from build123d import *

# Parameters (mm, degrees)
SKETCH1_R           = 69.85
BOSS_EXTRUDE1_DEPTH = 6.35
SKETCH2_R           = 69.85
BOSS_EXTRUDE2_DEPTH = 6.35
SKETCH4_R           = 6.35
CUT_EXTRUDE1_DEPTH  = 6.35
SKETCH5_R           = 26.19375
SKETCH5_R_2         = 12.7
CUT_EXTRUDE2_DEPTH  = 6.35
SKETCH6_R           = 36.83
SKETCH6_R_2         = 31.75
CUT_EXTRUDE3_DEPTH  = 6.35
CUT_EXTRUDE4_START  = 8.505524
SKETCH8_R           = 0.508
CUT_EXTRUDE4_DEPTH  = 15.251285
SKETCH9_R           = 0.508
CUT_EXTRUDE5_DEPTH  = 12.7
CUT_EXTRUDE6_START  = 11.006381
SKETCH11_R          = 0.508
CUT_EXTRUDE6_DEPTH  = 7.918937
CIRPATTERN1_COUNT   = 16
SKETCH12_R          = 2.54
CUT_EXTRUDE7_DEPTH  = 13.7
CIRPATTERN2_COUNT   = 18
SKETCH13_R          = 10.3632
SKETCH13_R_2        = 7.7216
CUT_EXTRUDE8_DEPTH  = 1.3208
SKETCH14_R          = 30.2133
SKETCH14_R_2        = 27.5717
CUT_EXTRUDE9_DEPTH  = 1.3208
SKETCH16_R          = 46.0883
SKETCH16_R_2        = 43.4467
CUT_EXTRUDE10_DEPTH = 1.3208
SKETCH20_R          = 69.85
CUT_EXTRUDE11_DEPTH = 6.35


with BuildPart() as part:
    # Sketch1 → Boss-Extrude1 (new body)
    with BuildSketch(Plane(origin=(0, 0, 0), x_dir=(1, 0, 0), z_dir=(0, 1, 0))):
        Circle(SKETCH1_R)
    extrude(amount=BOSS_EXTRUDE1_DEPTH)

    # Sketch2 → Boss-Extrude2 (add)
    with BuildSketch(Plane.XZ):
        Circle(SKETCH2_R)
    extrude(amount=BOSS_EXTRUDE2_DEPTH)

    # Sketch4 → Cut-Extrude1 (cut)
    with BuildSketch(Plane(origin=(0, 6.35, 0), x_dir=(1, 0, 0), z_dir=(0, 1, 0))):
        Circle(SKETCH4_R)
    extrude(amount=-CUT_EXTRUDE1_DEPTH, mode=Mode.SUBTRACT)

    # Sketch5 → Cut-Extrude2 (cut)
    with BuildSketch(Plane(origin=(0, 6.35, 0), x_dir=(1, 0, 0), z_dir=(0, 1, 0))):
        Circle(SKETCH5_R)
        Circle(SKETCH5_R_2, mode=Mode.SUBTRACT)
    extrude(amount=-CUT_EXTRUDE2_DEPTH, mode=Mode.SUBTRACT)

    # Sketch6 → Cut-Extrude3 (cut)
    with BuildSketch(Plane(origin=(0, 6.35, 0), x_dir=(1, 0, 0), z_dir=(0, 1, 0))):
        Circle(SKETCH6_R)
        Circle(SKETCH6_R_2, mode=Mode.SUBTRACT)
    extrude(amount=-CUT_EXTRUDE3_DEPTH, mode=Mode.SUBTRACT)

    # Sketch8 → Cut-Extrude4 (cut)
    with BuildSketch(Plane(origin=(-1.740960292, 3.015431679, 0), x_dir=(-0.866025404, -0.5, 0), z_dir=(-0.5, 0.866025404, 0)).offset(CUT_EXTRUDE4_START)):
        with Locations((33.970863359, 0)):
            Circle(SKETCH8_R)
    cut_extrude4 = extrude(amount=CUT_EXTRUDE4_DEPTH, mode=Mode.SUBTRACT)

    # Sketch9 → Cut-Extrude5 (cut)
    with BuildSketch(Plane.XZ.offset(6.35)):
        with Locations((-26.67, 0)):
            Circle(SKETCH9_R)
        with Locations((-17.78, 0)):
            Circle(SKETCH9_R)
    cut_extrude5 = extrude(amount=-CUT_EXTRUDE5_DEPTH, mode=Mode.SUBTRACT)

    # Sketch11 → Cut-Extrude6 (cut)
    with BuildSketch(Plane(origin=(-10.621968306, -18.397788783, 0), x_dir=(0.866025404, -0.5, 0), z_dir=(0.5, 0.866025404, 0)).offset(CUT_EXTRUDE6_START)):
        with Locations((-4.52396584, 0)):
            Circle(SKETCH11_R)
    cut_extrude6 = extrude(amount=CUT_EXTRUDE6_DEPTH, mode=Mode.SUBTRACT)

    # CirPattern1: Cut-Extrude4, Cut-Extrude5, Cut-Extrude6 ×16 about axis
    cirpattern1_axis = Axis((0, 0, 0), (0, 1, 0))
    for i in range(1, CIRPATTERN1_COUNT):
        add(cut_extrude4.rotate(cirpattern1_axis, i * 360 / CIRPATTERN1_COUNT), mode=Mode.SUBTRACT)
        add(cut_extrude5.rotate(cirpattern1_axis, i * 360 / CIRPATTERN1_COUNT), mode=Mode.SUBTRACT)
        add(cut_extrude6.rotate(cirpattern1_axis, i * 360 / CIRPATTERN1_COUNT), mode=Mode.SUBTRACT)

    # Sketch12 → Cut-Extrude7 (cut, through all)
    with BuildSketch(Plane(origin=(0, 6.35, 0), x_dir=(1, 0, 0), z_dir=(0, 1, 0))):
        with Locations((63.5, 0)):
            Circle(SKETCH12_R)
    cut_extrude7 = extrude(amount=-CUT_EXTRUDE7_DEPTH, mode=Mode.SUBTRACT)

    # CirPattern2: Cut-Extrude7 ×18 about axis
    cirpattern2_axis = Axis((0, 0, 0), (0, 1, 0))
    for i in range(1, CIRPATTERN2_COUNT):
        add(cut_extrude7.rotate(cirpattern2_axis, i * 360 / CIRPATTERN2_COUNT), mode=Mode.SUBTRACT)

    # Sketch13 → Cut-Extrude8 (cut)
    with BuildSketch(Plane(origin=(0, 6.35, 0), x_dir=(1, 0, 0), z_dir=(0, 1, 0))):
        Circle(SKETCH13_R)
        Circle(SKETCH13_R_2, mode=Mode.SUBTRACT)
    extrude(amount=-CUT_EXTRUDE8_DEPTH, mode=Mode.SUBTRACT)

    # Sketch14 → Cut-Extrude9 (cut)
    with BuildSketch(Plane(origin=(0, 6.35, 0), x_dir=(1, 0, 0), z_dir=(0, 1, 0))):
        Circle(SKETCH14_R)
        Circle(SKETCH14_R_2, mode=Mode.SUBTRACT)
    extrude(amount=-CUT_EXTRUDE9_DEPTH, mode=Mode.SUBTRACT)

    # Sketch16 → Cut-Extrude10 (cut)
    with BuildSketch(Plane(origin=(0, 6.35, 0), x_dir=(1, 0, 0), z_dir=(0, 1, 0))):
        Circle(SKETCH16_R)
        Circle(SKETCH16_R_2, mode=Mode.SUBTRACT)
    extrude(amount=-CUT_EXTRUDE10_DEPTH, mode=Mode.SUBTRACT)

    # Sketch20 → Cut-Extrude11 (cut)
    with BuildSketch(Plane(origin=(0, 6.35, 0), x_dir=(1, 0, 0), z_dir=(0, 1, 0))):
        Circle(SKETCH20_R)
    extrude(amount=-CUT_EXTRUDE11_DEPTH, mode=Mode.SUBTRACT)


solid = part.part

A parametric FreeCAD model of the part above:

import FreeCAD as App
import Part
import Sketcher
Q = App.Units.Quantity

doc = App.newDocument("Part")
params = doc.addObject("Spreadsheet::Sheet", "Params")
for row, (alias, value) in enumerate([
    ("sketch1_diameter", "5.5 in"),
    ("pad1_length", "0.25 in"),
    ("sketch2_diameter", "5.5 in"),
    ("pad2_length", "0.25 in"),
    ("sketch3_diameter", "0.5 in"),
    ("pocket1_length", "0.25 in"),
    ("sketch4_diameter", "1 in"),
    ("sketch4_diameter2", "2.0625 in"),
    ("pocket2_length", "0.25 in"),
    ("sketch5_diameter", "2.9 in"),
    ("sketch5_diameter2", "2.5 in"),
    ("pocket3_length", "0.25 in"),
    ("sketch6_diameter", "0.04 in"),
    ("pocket4_length", "15.251285 mm"),
    ("sketch7_diameter", "0.04 in"),
    ("pocket5_length", "0.5 in"),
    ("sketch8_diameter", "0.04 in"),
    ("pocket6_length", "7.918937 mm"),
    ("sketch9_diameter", "0.2 in"),
    ("sketch10_diameter", "0.816 in"),
    ("sketch10_diameter2", "0.608 in"),
    ("pocket8_length", "0.052 in"),
    ("sketch11_diameter", "2.379 in"),
    ("sketch11_diameter2", "2.171 in"),
    ("pocket9_length", "0.052 in"),
    ("sketch12_diameter", "3.629 in"),
    ("sketch12_diameter2", "3.421 in"),
    ("pocket10_length", "0.052 in"),
    ("sketch13_diameter", "5.5 in"),
    ("pocket11_length", "0.25 in"),
], start=1):
    params.set(f"A{row}", alias)
    params.set(f"B{row}", "=" + value)
    params.setAlias(f"B{row}", alias)

body = doc.addObject("PartDesign::Body", "Body")

sketch1 = body.newObject("Sketcher::SketchObject", "Sketch")
sketch1.AttachmentSupport = (doc.getObject("XZ_Plane"), [""])
sketch1.MapMode = "FlatFace"
sketch1.addGeometry(Part.Circle(App.Vector(0, 0, 0), App.Vector(0, 0, 1), 70), False)
sketch1.addConstraint([
    Sketcher.Constraint("Coincident", 0, 3, -1, 1),
    Sketcher.Constraint("Diameter", 0, Q("5.5 in")),
])
sketch1.setExpression("Constraints[1]", "Params.sketch1_diameter")
pad1 = body.newObject("PartDesign::Pad", "Pad")
pad1.Profile = sketch1
pad1.setExpression("Length", "Params.pad1_length")
pad1.Reversed = True

sketch2 = body.newObject("Sketcher::SketchObject", "Sketch001")
sketch2.AttachmentSupport = (doc.getObject("XZ_Plane"), [""])
sketch2.MapMode = "FlatFace"
sketch2.addGeometry(Part.Circle(App.Vector(0, 0, 0), App.Vector(0, 0, 1), 70), False)
sketch2.addConstraint([
    Sketcher.Constraint("Coincident", 0, 3, -1, 1),
    Sketcher.Constraint("Diameter", 0, Q("5.5 in")),
])
sketch2.setExpression("Constraints[1]", "Params.sketch2_diameter")
pad2 = body.newObject("PartDesign::Pad", "Pad001")
pad2.Profile = sketch2
pad2.setExpression("Length", "Params.pad2_length")

sketch3 = body.newObject("Sketcher::SketchObject", "Sketch002")
sketch3.AttachmentSupport = (doc.getObject("XZ_Plane"), [""])
sketch3.MapMode = "FlatFace"
sketch3.AttachmentOffset = App.Placement(App.Vector(0, 0, -0.25 * 25.4), App.Rotation())
sketch3.addGeometry(Part.Circle(App.Vector(0, 0, 0), App.Vector(0, 0, 1), 6), False)
sketch3.addConstraint([
    Sketcher.Constraint("Coincident", 0, 3, -1, 1),
    Sketcher.Constraint("Diameter", 0, Q("0.5 in")),
])
sketch3.setExpression("Constraints[1]", "Params.sketch3_diameter")
pocket1 = body.newObject("PartDesign::Pocket", "Pocket")
pocket1.Profile = sketch3
pocket1.setExpression("Length", "Params.pocket1_length")
pocket1.Reversed = True

sketch4 = body.newObject("Sketcher::SketchObject", "Sketch003")
sketch4.AttachmentSupport = (doc.getObject("XZ_Plane"), [""])
sketch4.MapMode = "FlatFace"
sketch4.AttachmentOffset = App.Placement(App.Vector(0, 0, -0.25 * 25.4), App.Rotation())
sketch4.addGeometry([
    Part.Circle(App.Vector(0, 0, 0), App.Vector(0, 0, 1), 26),
    Part.Circle(App.Vector(0, 0, 0), App.Vector(0, 0, 1), 13),
], False)
sketch4.addConstraint([
    Sketcher.Constraint("Coincident", 0, 3, -1, 1),
    Sketcher.Constraint("Coincident", 1, 3, -1, 1),
    Sketcher.Constraint("Diameter", 1, Q("1 in")),
    Sketcher.Constraint("Diameter", 0, Q("2.0625 in")),
])
sketch4.setExpression("Constraints[2]", "Params.sketch4_diameter")
sketch4.setExpression("Constraints[3]", "Params.sketch4_diameter2")
pocket2 = body.newObject("PartDesign::Pocket", "Pocket001")
pocket2.Profile = sketch4
pocket2.setExpression("Length", "Params.pocket2_length")
pocket2.Reversed = True

sketch5 = body.newObject("Sketcher::SketchObject", "Sketch004")
sketch5.AttachmentSupport = (doc.getObject("XZ_Plane"), [""])
sketch5.MapMode = "FlatFace"
sketch5.AttachmentOffset = App.Placement(App.Vector(0, 0, -0.25 * 25.4), App.Rotation())
sketch5.addGeometry([
    Part.Circle(App.Vector(0, 0, 0), App.Vector(0, 0, 1), 37),
    Part.Circle(App.Vector(0, 0, 0), App.Vector(0, 0, 1), 32),
], False)
sketch5.addConstraint([
    Sketcher.Constraint("Coincident", 0, 3, -1, 1),
    Sketcher.Constraint("Coincident", 1, 3, -1, 1),
    Sketcher.Constraint("Diameter", 0, Q("2.9 in")),
    Sketcher.Constraint("Diameter", 1, Q("2.5 in")),
])
sketch5.setExpression("Constraints[2]", "Params.sketch5_diameter")
sketch5.setExpression("Constraints[3]", "Params.sketch5_diameter2")
pocket3 = body.newObject("PartDesign::Pocket", "Pocket002")
pocket3.Profile = sketch5
pocket3.setExpression("Length", "Params.pocket3_length")
pocket3.Reversed = True

sketch6 = body.newObject("Sketcher::SketchObject", "Sketch005")
sketch6.Placement = App.Placement(App.Vector(-5.993722, 10.381432, 0), App.Rotation(App.Vector(-0.866025404, -0.5, 0), App.Vector(0, 0, 1), App.Vector(-0.5, 0.866025404, 0), "ZXY"))
sketch6.addGeometry(Part.Circle(App.Vector(34, 0, 0), App.Vector(0, 0, 1), 0.5), False)
sketch6.addConstraint([
    Sketcher.Constraint("PointOnObject", 0, 3, -1),
    Sketcher.Constraint("Diameter", 0, Q("0.04 in")),
    Sketcher.Constraint("DistanceX", -1, 1, 0, 3, 33.970863),
])
sketch6.setExpression("Constraints[1]", "Params.sketch6_diameter")
pocket4 = body.newObject("PartDesign::Pocket", "Pocket003")
pocket4.Profile = sketch6
pocket4.setExpression("Length", "Params.pocket4_length")
pocket4.Reversed = True

sketch7 = body.newObject("Sketcher::SketchObject", "Sketch006")
sketch7.AttachmentSupport = (doc.getObject("XZ_Plane"), [""])
sketch7.MapMode = "FlatFace"
sketch7.AttachmentOffset = App.Placement(App.Vector(0, 0, 0.25 * 25.4), App.Rotation())
sketch7.addGeometry([
    Part.Circle(App.Vector(-26.7, 0, 0), App.Vector(0, 0, 1), 0.5),
    Part.Circle(App.Vector(-17.8, 0, 0), App.Vector(0, 0, 1), 0.5),
], False)
sketch7.addConstraint([
    Sketcher.Constraint("Equal", 0, 1),
    Sketcher.Constraint("PointOnObject", 0, 3, -1),
    Sketcher.Constraint("PointOnObject", 1, 3, -1),
    Sketcher.Constraint("Diameter", 0, Q("0.04 in")),
    Sketcher.Constraint("DistanceX", 1, 3, -1, 1, Q("0.7 in")),
    Sketcher.Constraint("DistanceX", 0, 3, -1, 1, Q("1.05 in")),
])
sketch7.setExpression("Constraints[3]", "Params.sketch7_diameter")
pocket5 = body.newObject("PartDesign::Pocket", "Pocket004")
pocket5.Profile = sketch7
pocket5.setExpression("Length", "Params.pocket5_length")

sketch8 = body.newObject("Sketcher::SketchObject", "Sketch007")
sketch8.Placement = App.Placement(App.Vector(-5.118778, -8.865983, 0), App.Rotation(App.Vector(0.866025404, -0.5, 0), App.Vector(0, 0, -1), App.Vector(0.5, 0.866025404, 0), "ZXY"))
sketch8.addGeometry(Part.Circle(App.Vector(-4.5, 0, 0), App.Vector(0, 0, 1), 0.5), False)
sketch8.addConstraint([
    Sketcher.Constraint("PointOnObject", 0, 3, -1),
    Sketcher.Constraint("Diameter", 0, Q("0.04 in")),
    Sketcher.Constraint("DistanceX", 0, 3, -1, 1, 4.523966),
])
sketch8.setExpression("Constraints[1]", "Params.sketch8_diameter")
pocket6 = body.newObject("PartDesign::Pocket", "Pocket005")
pocket6.Profile = sketch8
pocket6.setExpression("Length", "Params.pocket6_length")
pocket6.Reversed = True
doc.recompute()

polarpattern = body.newObject("PartDesign::PolarPattern", "PolarPattern")
polarpattern.Originals = [pocket4, pocket5, pocket6]
polarpattern.Axis = (doc.getObject("Y_Axis"), [""])
polarpattern.Angle = 360
polarpattern.Occurrences = 16
body.Tip = polarpattern

sketch9 = body.newObject("Sketcher::SketchObject", "Sketch008")
sketch9.AttachmentSupport = (doc.getObject("XZ_Plane"), [""])
sketch9.MapMode = "FlatFace"
sketch9.AttachmentOffset = App.Placement(App.Vector(0, 0, -0.25 * 25.4), App.Rotation())
sketch9.addGeometry(Part.Circle(App.Vector(63.5, 0, 0), App.Vector(0, 0, 1), 2.5), False)
sketch9.addConstraint([
    Sketcher.Constraint("PointOnObject", 0, 3, -1),
    Sketcher.Constraint("Diameter", 0, Q("0.2 in")),
    Sketcher.Constraint("DistanceX", -1, 1, 0, 3, Q("2.5 in")),
])
sketch9.setExpression("Constraints[1]", "Params.sketch9_diameter")
pocket7 = body.newObject("PartDesign::Pocket", "Pocket006")
pocket7.Profile = sketch9
pocket7.Type = "ThroughAll"
pocket7.Reversed = True
doc.recompute()

polarpattern2 = body.newObject("PartDesign::PolarPattern", "PolarPattern001")
polarpattern2.Originals = [pocket7]
polarpattern2.Axis = (doc.getObject("Y_Axis"), [""])
polarpattern2.Angle = 360
polarpattern2.Occurrences = 18
body.Tip = polarpattern2

sketch10 = body.newObject("Sketcher::SketchObject", "Sketch009")
sketch10.AttachmentSupport = (doc.getObject("XZ_Plane"), [""])
sketch10.MapMode = "FlatFace"
sketch10.AttachmentOffset = App.Placement(App.Vector(0, 0, -0.25 * 25.4), App.Rotation())
sketch10.addGeometry([
    Part.Circle(App.Vector(0, 0, 0), App.Vector(0, 0, 1), 10),
    Part.Circle(App.Vector(0, 0, 0), App.Vector(0, 0, 1), 8),
], False)
sketch10.addConstraint([
    Sketcher.Constraint("Coincident", 0, 3, -1, 1),
    Sketcher.Constraint("Coincident", 1, 3, -1, 1),
    Sketcher.Constraint("Diameter", 0, Q("0.816 in")),
    Sketcher.Constraint("Diameter", 1, Q("0.608 in")),
])
sketch10.setExpression("Constraints[2]", "Params.sketch10_diameter")
sketch10.setExpression("Constraints[3]", "Params.sketch10_diameter2")
pocket8 = body.newObject("PartDesign::Pocket", "Pocket007")
pocket8.Profile = sketch10
pocket8.setExpression("Length", "Params.pocket8_length")
pocket8.Reversed = True

sketch11 = body.newObject("Sketcher::SketchObject", "Sketch010")
sketch11.AttachmentSupport = (doc.getObject("XZ_Plane"), [""])
sketch11.MapMode = "FlatFace"
sketch11.AttachmentOffset = App.Placement(App.Vector(0, 0, -0.25 * 25.4), App.Rotation())
sketch11.addGeometry([
    Part.Circle(App.Vector(0, 0, 0), App.Vector(0, 0, 1), 30),
    Part.Circle(App.Vector(0, 0, 0), App.Vector(0, 0, 1), 28),
], False)
sketch11.addConstraint([
    Sketcher.Constraint("Coincident", 0, 3, -1, 1),
    Sketcher.Constraint("Coincident", 1, 3, -1, 1),
    Sketcher.Constraint("Diameter", 0, Q("2.379 in")),
    Sketcher.Constraint("Diameter", 1, Q("2.171 in")),
])
sketch11.setExpression("Constraints[2]", "Params.sketch11_diameter")
sketch11.setExpression("Constraints[3]", "Params.sketch11_diameter2")
pocket9 = body.newObject("PartDesign::Pocket", "Pocket008")
pocket9.Profile = sketch11
pocket9.setExpression("Length", "Params.pocket9_length")
pocket9.Reversed = True

sketch12 = body.newObject("Sketcher::SketchObject", "Sketch011")
sketch12.AttachmentSupport = (doc.getObject("XZ_Plane"), [""])
sketch12.MapMode = "FlatFace"
sketch12.AttachmentOffset = App.Placement(App.Vector(0, 0, -0.25 * 25.4), App.Rotation())
sketch12.addGeometry([
    Part.Circle(App.Vector(0, 0, 0), App.Vector(0, 0, 1), 46),
    Part.Circle(App.Vector(0, 0, 0), App.Vector(0, 0, 1), 43),
], False)
sketch12.addConstraint([
    Sketcher.Constraint("Coincident", 0, 3, -1, 1),
    Sketcher.Constraint("Coincident", 1, 3, -1, 1),
    Sketcher.Constraint("Diameter", 0, Q("3.629 in")),
    Sketcher.Constraint("Diameter", 1, Q("3.421 in")),
])
sketch12.setExpression("Constraints[2]", "Params.sketch12_diameter")
sketch12.setExpression("Constraints[3]", "Params.sketch12_diameter2")
pocket10 = body.newObject("PartDesign::Pocket", "Pocket009")
pocket10.Profile = sketch12
pocket10.setExpression("Length", "Params.pocket10_length")
pocket10.Reversed = True

sketch13 = body.newObject("Sketcher::SketchObject", "Sketch012")
sketch13.AttachmentSupport = (doc.getObject("XZ_Plane"), [""])
sketch13.MapMode = "FlatFace"
sketch13.AttachmentOffset = App.Placement(App.Vector(0, 0, -0.25 * 25.4), App.Rotation())
sketch13.addGeometry(Part.Circle(App.Vector(0, 0, 0), App.Vector(0, 0, 1), 70), False)
sketch13.addConstraint([
    Sketcher.Constraint("Coincident", 0, 3, -1, 1),
    Sketcher.Constraint("Diameter", 0, Q("5.5 in")),
])
sketch13.setExpression("Constraints[1]", "Params.sketch13_diameter")
pocket11 = body.newObject("PartDesign::Pocket", "Pocket010")
pocket11.Profile = sketch13
pocket11.setExpression("Length", "Params.pocket11_length")
pocket11.Reversed = True

doc.recompute()
